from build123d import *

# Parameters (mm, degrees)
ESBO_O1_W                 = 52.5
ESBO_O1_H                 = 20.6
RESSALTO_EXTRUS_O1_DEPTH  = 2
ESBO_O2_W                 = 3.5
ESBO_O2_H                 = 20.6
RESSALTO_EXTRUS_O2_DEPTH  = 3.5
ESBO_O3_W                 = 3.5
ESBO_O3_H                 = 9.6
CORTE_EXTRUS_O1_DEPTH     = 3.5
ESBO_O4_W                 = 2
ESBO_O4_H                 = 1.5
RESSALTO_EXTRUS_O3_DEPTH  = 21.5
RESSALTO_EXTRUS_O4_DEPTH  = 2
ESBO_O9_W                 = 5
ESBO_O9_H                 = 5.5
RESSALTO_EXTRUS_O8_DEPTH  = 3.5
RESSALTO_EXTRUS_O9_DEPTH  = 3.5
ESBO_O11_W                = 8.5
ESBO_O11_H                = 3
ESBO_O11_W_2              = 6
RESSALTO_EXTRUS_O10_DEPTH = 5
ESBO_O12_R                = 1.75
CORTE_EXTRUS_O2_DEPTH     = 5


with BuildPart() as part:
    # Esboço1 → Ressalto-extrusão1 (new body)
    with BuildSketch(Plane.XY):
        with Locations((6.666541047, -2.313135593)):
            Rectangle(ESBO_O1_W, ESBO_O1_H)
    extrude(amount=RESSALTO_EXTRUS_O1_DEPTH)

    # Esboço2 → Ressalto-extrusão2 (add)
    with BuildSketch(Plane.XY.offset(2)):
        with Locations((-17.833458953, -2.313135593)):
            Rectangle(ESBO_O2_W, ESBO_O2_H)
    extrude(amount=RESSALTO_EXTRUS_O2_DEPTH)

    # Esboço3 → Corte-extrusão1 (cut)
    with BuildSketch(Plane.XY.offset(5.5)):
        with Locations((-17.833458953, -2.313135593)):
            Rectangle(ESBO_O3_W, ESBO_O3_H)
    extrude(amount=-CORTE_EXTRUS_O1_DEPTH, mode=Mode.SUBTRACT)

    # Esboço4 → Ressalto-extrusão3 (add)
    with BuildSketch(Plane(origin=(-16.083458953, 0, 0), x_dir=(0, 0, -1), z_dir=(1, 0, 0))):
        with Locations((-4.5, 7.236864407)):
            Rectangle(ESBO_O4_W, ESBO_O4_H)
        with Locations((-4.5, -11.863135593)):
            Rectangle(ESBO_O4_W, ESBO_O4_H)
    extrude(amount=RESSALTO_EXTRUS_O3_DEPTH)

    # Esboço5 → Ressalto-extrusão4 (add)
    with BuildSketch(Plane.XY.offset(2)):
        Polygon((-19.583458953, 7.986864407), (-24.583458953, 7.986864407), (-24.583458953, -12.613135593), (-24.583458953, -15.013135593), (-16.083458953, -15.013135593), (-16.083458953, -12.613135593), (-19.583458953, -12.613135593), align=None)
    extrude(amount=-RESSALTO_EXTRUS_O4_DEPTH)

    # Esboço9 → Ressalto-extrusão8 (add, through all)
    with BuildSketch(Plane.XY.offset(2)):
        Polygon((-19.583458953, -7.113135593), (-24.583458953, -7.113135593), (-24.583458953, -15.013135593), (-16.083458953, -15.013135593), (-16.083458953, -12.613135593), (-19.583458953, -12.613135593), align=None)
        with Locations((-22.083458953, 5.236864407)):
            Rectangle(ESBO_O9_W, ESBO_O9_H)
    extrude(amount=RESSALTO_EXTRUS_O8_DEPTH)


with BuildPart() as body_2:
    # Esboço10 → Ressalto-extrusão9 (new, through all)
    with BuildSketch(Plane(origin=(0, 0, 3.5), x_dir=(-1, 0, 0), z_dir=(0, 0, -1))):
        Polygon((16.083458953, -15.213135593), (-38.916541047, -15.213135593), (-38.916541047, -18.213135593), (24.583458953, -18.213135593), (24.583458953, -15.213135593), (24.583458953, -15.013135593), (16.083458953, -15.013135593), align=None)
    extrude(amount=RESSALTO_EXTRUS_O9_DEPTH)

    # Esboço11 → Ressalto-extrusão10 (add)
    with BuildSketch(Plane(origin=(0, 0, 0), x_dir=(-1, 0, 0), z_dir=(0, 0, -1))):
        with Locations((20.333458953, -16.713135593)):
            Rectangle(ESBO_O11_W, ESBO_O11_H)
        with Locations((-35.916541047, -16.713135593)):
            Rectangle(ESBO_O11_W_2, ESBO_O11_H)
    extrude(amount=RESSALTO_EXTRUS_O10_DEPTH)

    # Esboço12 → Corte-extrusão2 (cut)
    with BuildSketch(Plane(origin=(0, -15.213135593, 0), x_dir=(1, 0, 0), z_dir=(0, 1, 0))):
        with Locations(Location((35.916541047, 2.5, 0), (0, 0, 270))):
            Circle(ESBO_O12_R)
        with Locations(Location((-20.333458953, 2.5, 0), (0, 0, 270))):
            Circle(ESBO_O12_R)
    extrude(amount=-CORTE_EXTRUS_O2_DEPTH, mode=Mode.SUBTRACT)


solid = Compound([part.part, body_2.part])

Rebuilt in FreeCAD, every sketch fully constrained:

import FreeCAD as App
import Part
import Sketcher
Q = App.Units.Quantity


def add_polygon(sketch, points):
    """Adds a closed chain of lines whose ends are joined by coincident constraints."""
    first, n = sketch.GeometryCount, len(points)
    for a, b in zip(points, points[1:] + points[:1]):
        sketch.addGeometry(Part.LineSegment(App.Vector(*a, 0), App.Vector(*b, 0)), False)
    for i in range(n):
        sketch.addConstraint(Sketcher.Constraint("Coincident", first + i, 2, first + (i + 1) % n, 1))

doc = App.newDocument("Part")
params = doc.addObject("Spreadsheet::Sheet", "Params")
for row, (alias, value) in enumerate([
    ("sketch1_width", "52.5 mm"),
    ("sketch1_height", "20.6 mm"),
    ("pad1_length", "2 mm"),
    ("sketch2_width", "3.5 mm"),
    ("sketch2_height", "20.6 mm"),
    ("pad2_length", "3.5 mm"),
    ("sketch3_width", "3.5 mm"),
    ("sketch3_height", "9.6 mm"),
    ("pocket1_length", "3.5 mm"),
    ("sketch4_height", "2 mm"),
    ("sketch4_width", "1.5 mm"),
    ("pad3_length", "21.5 mm"),
    ("sketch5_width", "5 mm"),
    ("sketch5_height", "23 mm"),
    ("sketch5_width2", "8.5 mm"),
    ("sketch5_height2", "2.4 mm"),
    ("pad4_length", "2 mm"),
    ("sketch6_width", "5 mm"),
    ("sketch6_width2", "8.5 mm"),
    ("sketch6_height", "7.9 mm"),
    ("sketch6_height2", "2.4 mm"),
    ("pad5_length", "3.5 mm"),
    ("sketch7_width", "55 mm"),
    ("sketch7_height", "3 mm"),
    ("sketch7_width2", "63.5 mm"),
    ("sketch7_height2", "3.2 mm"),
    ("pad6_length", "3.5 mm"),
    ("sketch8_width", "6 mm"),
    ("sketch8_height", "3 mm"),
    ("sketch8_width2", "8.5 mm"),
    ("pad7_length", "5 mm"),
    ("sketch9_diameter", "3.5 mm"),
    ("pocket2_length", "5 mm"),
], start=1):
    params.set(f"A{row}", alias)
    params.set(f"B{row}", "=" + value)
    params.setAlias(f"B{row}", alias)

body = doc.addObject("PartDesign::Body", "Body")

sketch1 = body.newObject("Sketcher::SketchObject", "Sketch")
sketch1.AttachmentSupport = (doc.getObject("XY_Plane"), [""])
sketch1.MapMode = "FlatFace"
add_polygon(sketch1, [(-20, 8), (-20, -13), (33, -13), (33, 8)])
sketch1.addConstraint([
    Sketcher.Constraint("Vertical", 0),
    Sketcher.Constraint("Horizontal", 1),
    Sketcher.Constraint("Vertical", 2),
    Sketcher.Constraint("Horizontal", 3),
    Sketcher.Constraint("DistanceX", 1, 1, 1, 2, Q("52.5 mm")),
    Sketcher.Constraint("DistanceY", 0, 2, 0, 1, Q("20.6 mm")),
    Sketcher.Constraint("DistanceX", 0, 2, -1, 1, Q("19.583459 mm")),
    Sketcher.Constraint("DistanceY", 0, 2, -1, 1, Q("12.613136 mm")),
])
sketch1.setExpression("Constraints[8]", "Params.sketch1_width")
sketch1.setExpression("Constraints[9]", "Params.sketch1_height")
pad1 = body.newObject("PartDesign::Pad", "Pad")
pad1.Profile = sketch1
pad1.setExpression("Length", "Params.pad1_length")

sketch2 = body.newObject("Sketcher::SketchObject", "Sketch001")
sketch2.AttachmentSupport = (doc.getObject("XY_Plane"), [""])
sketch2.MapMode = "FlatFace"
sketch2.AttachmentOffset = App.Placement(App.Vector(0, 0, 2), App.Rotation())
add_polygon(sketch2, [(-19.6, 8), (-19.6, -12.6), (-16.1, -12.6), (-16.1, 8)])
sketch2.addConstraint([
    Sketcher.Constraint("Vertical", 0),
    Sketcher.Constraint("Horizontal", 1),
    Sketcher.Constraint("Vertical", 2),
    Sketcher.Constraint("Horizontal", 3),
    Sketcher.Constraint("DistanceX", 1, 1, 1, 2, Q("3.5 mm")),
    Sketcher.Constraint("DistanceY", 0, 2, 0, 1, Q("20.6 mm")),
    Sketcher.Constraint("DistanceX", 0, 2, -1, 1, Q("19.583459 mm")),
    Sketcher.Constraint("DistanceY", 0, 2, -1, 1, Q("12.613136 mm")),
])
sketch2.setExpression("Constraints[8]", "Params.sketch2_width")
sketch2.setExpression("Constraints[9]", "Params.sketch2_height")
pad2 = body.newObject("PartDesign::Pad", "Pad001")
pad2.Profile = sketch2
pad2.setExpression("Length", "Params.pad2_length")

sketch3 = body.newObject("Sketcher::SketchObject", "Sketch002")
sketch3.AttachmentSupport = (doc.getObject("XY_Plane"), [""])
sketch3.MapMode = "FlatFace"
sketch3.AttachmentOffset = App.Placement(App.Vector(0, 0, 5.5), App.Rotation())
add_polygon(sketch3, [(-19.6, 2.5), (-19.6, -7.1), (-16.1, -7.1), (-16.1, 2.5)])
sketch3.addConstraint([
    Sketcher.Constraint("Vertical", 0),
    Sketcher.Constraint("Horizontal", 1),
    Sketcher.Constraint("Vertical", 2),
    Sketcher.Constraint("Horizontal", 3),
    Sketcher.Constraint("DistanceX", 1, 1, 1, 2, Q("3.5 mm")),
    Sketcher.Constraint("DistanceY", 0, 2, 0, 1, Q("9.6 mm")),
    Sketcher.Constraint("DistanceX", 0, 2, -1, 1, Q("19.583459 mm")),
    Sketcher.Constraint("DistanceY", 0, 2, -1, 1, Q("7.113136 mm")),
])
sketch3.setExpression("Constraints[8]", "Params.sketch3_width")
sketch3.setExpression("Constraints[9]", "Params.sketch3_height")
pocket1 = body.newObject("PartDesign::Pocket", "Pocket")
pocket1.Profile = sketch3
pocket1.setExpression("Length", "Params.pocket1_length")

sketch4 = body.newObject("Sketcher::SketchObject", "Sketch003")
sketch4.AttachmentSupport = (doc.getObject("YZ_Plane"), [""])
sketch4.MapMode = "FlatFace"
sketch4.AttachmentOffset = App.Placement(App.Vector(0, 0, -16.083459), App.Rotation())
add_polygon(sketch4, [(8, 5.5), (6.5, 5.5), (6.5, 3.5), (8, 3.5)])
add_polygon(sketch4, [(-11.1, 5.5), (-12.6, 5.5), (-12.6, 3.5), (-11.1, 3.5)])
sketch4.addConstraint([
    Sketcher.Constraint("Horizontal", 0),
    Sketcher.Constraint("Vertical", 1),
    Sketcher.Constraint("Horizontal", 2),
    Sketcher.Constraint("Vertical", 3),
    Sketcher.Constraint("Horizontal", 4),
    Sketcher.Constraint("Vertical", 5),
    Sketcher.Constraint("Horizontal", 6),
    Sketcher.Constraint("Vertical", 7),
    Sketcher.Constraint("Horizontal", 3, 2, 4, 2),
    Sketcher.Constraint("Horizontal", 2, 2, 5, 2),
    Sketcher.Constraint("Equal", 2, 4),
    Sketcher.Constraint("DistanceY", 1, 2, 1, 1, Q("2 mm")),
    Sketcher.Constraint("DistanceX", 0, 2, 0, 1, Q("1.5 mm")),
    Sketcher.Constraint("DistanceY", -1, 1, 0, 2, Q("5.5 mm")),
    Sketcher.Constraint("DistanceX", 4, 2, 0, 2, Q("19.1 mm")),
    Sketcher.Constraint("DistanceX", -1, 1, 0, 2, Q("6.486864 mm")),
])
sketch4.setExpression("Constraints[19]", "Params.sketch4_height")
sketch4.setExpression("Constraints[20]", "Params.sketch4_width")
pad3 = body.newObject("PartDesign::Pad", "Pad002")
pad3.Profile = sketch4
pad3.setExpression("Length", "Params.pad3_length")

sketch5 = body.newObject("Sketcher::SketchObject", "Sketch004")
sketch5.AttachmentSupport = (doc.getObject("XY_Plane"), [""])
sketch5.MapMode = "FlatFace"
sketch5.AttachmentOffset = App.Placement(App.Vector(0, 0, 2), App.Rotation())
add_polygon(sketch5, [(-19.6, 8), (-24.6, 8), (-24.6, -15), (-16.1, -15), (-16.1, -12.6), (-19.6, -12.6)])
sketch5.addConstraint([
    Sketcher.Constraint("Horizontal", 0),
    Sketcher.Constraint("Vertical", 1),
    Sketcher.Constraint("Horizontal", 2),
    Sketcher.Constraint("Vertical", 3),
    Sketcher.Constraint("Horizontal", 4),
    Sketcher.Constraint("Vertical", 5),
    Sketcher.Constraint("DistanceX", 0, 2, 0, 1, Q("5 mm")),
    Sketcher.Constraint("DistanceY", 1, 2, 1, 1, Q("23 mm")),
    Sketcher.Constraint("DistanceX", 2, 1, 2, 2, Q("8.5 mm")),
    Sketcher.Constraint("DistanceY", 3, 1, 3, 2, Q("2.4 mm")),
    Sketcher.Constraint("DistanceX", 0, 2, -1, 1, Q("24.583459 mm")),
    Sketcher.Constraint("DistanceY", -1, 1, 0, 2, Q("7.986864 mm")),
])
sketch5.setExpression("Constraints[12]", "Params.sketch5_width")
sketch5.setExpression("Constraints[13]", "Params.sketch5_height")
sketch5.setExpression("Constraints[14]", "Params.sketch5_width2")
sketch5.setExpression("Constraints[15]", "Params.sketch5_height2")
pad4 = body.newObject("PartDesign::Pad", "Pad003")
pad4.Profile = sketch5
pad4.setExpression("Length", "Params.pad4_length")
pad4.Reversed = True

sketch6 = body.newObject("Sketcher::SketchObject", "Sketch005")
sketch6.AttachmentSupport = (doc.getObject("XY_Plane"), [""])
sketch6.MapMode = "FlatFace"
sketch6.AttachmentOffset = App.Placement(App.Vector(0, 0, 2), App.Rotation())
add_polygon(sketch6, [(-19.6, -7.1), (-24.6, -7.1), (-24.6, -15), (-16.1, -15), (-16.1, -12.6), (-19.6, -12.6)])
add_polygon(sketch6, [(-24.6, 8), (-24.6, 2.5), (-19.6, 2.5), (-19.6, 8)])
sketch6.addConstraint([
    Sketcher.Constraint("Horizontal", 0),
    Sketcher.Constraint("Vertical", 1),
    Sketcher.Constraint("Horizontal", 2),
    Sketcher.Constraint("Vertical", 3),
    Sketcher.Constraint("Horizontal", 4),
    Sketcher.Constraint("Vertical", 5),
    Sketcher.Constraint("Vertical", 6),
    Sketcher.Constraint("Horizontal", 7),
    Sketcher.Constraint("Vertical", 8),
    Sketcher.Constraint("Horizontal", 9),
    Sketcher.Constraint("Vertical", 1, 2, 6, 2),
    Sketcher.Constraint("Vertical", 5, 2, 7, 2),
    Sketcher.Constraint("Equal", 5, 6),
    Sketcher.Constraint("DistanceX", 0, 2, 0, 1, Q("5 mm")),
    Sketcher.Constraint("DistanceX", 2, 1, 2, 2, Q("8.5 mm")),
    Sketcher.Constraint("DistanceY", 1, 2, 1, 1, Q("7.9 mm")),
    Sketcher.Constraint("DistanceY", 3, 1, 3, 2, Q("2.4 mm")),
    Sketcher.Constraint("DistanceY", 0, 2, 6, 2, Q("9.6 mm")),
    Sketcher.Constraint("DistanceX", 0, 2, -1, 1, Q("24.583459 mm")),
    Sketcher.Constraint("DistanceY", 0, 2, -1, 1, Q("7.113136 mm")),
])
sketch6.setExpression("Constraints[23]", "Params.sketch6_width")
sketch6.setExpression("Constraints[24]", "Params.sketch6_width2")
sketch6.setExpression("Constraints[25]", "Params.sketch6_height")
sketch6.setExpression("Constraints[26]", "Params.sketch6_height2")
pad5 = body.newObject("PartDesign::Pad", "Pad004")
pad5.Profile = sketch6
pad5.setExpression("Length", "Params.pad5_length")
body2 = doc.addObject("PartDesign::Body", "Body001")

sketch7 = body2.newObject("Sketcher::SketchObject", "Sketch006")
sketch7.AttachmentSupport = (doc.getObject("XY_Plane001"), [""])
sketch7.MapMode = "FlatFace"
sketch7.AttachmentOffset = App.Placement(App.Vector(0, 0, 3.5), App.Rotation())
add_polygon(sketch7, [(-16.08, -15.21), (38.92, -15.21), (38.92, -18.21), (-24.58, -18.21), (-24.58, -15.01), (-16.08, -15.01)])
sketch7.addConstraint([
    Sketcher.Constraint("Horizontal", 0),
    Sketcher.Constraint("Vertical", 1),
    Sketcher.Constraint("Horizontal", 2),
    Sketcher.Constraint("Vertical", 3),
    Sketcher.Constraint("Horizontal", 4),
    Sketcher.Constraint("Vertical", 5),
    Sketcher.Constraint("DistanceX", 0, 1, 0, 2, Q("55 mm")),
    Sketcher.Constraint("DistanceY", 1, 2, 1, 1, Q("3 mm")),
    Sketcher.Constraint("DistanceX", 2, 2, 2, 1, Q("63.5 mm")),
    Sketcher.Constraint("DistanceY", 3, 1, 3, 2, Q("3.2 mm")),
    Sketcher.Constraint("DistanceX", -1, 1, 0, 2, Q("38.916541 mm")),
    Sketcher.Constraint("DistanceY", 0, 2, -1, 1, Q("15.213136 mm")),
])
sketch7.setExpression("Constraints[12]", "Params.sketch7_width")
sketch7.setExpression("Constraints[13]", "Params.sketch7_height")
sketch7.setExpression("Constraints[14]", "Params.sketch7_width2")
sketch7.setExpression("Constraints[15]", "Params.sketch7_height2")
pad6 = body2.newObject("PartDesign::Pad", "Pad005")
pad6.Profile = sketch7
pad6.setExpression("Length", "Params.pad6_length")
pad6.Reversed = True

sketch8 = body2.newObject("Sketcher::SketchObject", "Sketch007")
sketch8.AttachmentSupport = (doc.getObject("XY_Plane001"), [""])
sketch8.MapMode = "FlatFace"
add_polygon(sketch8, [(-16.1, -15.2), (-16.1, -18.2), (-24.6, -18.2), (-24.6, -15.2)])
add_polygon(sketch8, [(38.9, -15.2), (38.9, -18.2), (32.9, -18.2), (32.9, -15.2)])
sketch8.addConstraint([
    Sketcher.Constraint("Vertical", 0),
    Sketcher.Constraint("Horizontal", 1),
    Sketcher.Constraint("Vertical", 2),
    Sketcher.Constraint("Horizontal", 3),
    Sketcher.Constraint("Vertical", 4),
    Sketcher.Constraint("Horizontal", 5),
    Sketcher.Constraint("Vertical", 6),
    Sketcher.Constraint("Horizontal", 7),
    Sketcher.Constraint("Horizontal", 1, 2, 4, 2),
    Sketcher.Constraint("Horizontal", 3, 2, 6, 2),
    Sketcher.Constraint("DistanceX", 5, 2, 5, 1, Q("6 mm")),
    Sketcher.Constraint("DistanceY", 0, 2, 0, 1, Q("3 mm")),
    Sketcher.Constraint("DistanceX", 1, 2, 1, 1, Q("8.5 mm")),
    Sketcher.Constraint("DistanceX", 0, 2, 4, 2, Q("55 mm")),
    Sketcher.Constraint("DistanceX", 0, 2, -1, 1, Q("16.083459 mm")),
    Sketcher.Constraint("DistanceY", 0, 2, -1, 1, Q("18.213136 mm")),
])
sketch8.setExpression("Constraints[18]", "Params.sketch8_width")
sketch8.setExpression("Constraints[19]", "Params.sketch8_height")
sketch8.setExpression("Constraints[20]", "Params.sketch8_width2")
pad7 = body2.newObject("PartDesign::Pad", "Pad006")
pad7.Profile = sketch8
pad7.setExpression("Length", "Params.pad7_length")
pad7.Reversed = True

sketch9 = body2.newObject("Sketcher::SketchObject", "Sketch008")
sketch9.AttachmentSupport = (doc.getObject("XZ_Plane001"), [""])
sketch9.MapMode = "FlatFace"
sketch9.AttachmentOffset = App.Placement(App.Vector(0, 0, 15.213136), App.Rotation())
sketch9.addGeometry([
    Part.Circle(App.Vector(35.9, -2.5, 0), App.Vector(0, 0, 1), 1.8),
    Part.Circle(App.Vector(-20.3, -2.5, 0), App.Vector(0, 0, 1), 1.8),
], False)
sketch9.addConstraint([
    Sketcher.Constraint("Equal", 0, 1),
    Sketcher.Constraint("Horizontal", 0, 3, 1, 3),
    Sketcher.Constraint("Diameter", 0, Q("3.5 mm")),
    Sketcher.Constraint("DistanceY", 0, 3, -1, 1, Q("2.5 mm")),
    Sketcher.Constraint("DistanceX", 1, 3, 0, 3, Q("56.25 mm")),
    Sketcher.Constraint("DistanceX", -1, 1, 0, 3, Q("35.916541 mm")),
])
sketch9.setExpression("Constraints[2]", "Params.sketch9_diameter")
pocket2 = body2.newObject("PartDesign::Pocket", "Pocket001")
pocket2.Profile = sketch9
pocket2.setExpression("Length", "Params.pocket2_length")
pocket2.Reversed = True

doc.recompute()
